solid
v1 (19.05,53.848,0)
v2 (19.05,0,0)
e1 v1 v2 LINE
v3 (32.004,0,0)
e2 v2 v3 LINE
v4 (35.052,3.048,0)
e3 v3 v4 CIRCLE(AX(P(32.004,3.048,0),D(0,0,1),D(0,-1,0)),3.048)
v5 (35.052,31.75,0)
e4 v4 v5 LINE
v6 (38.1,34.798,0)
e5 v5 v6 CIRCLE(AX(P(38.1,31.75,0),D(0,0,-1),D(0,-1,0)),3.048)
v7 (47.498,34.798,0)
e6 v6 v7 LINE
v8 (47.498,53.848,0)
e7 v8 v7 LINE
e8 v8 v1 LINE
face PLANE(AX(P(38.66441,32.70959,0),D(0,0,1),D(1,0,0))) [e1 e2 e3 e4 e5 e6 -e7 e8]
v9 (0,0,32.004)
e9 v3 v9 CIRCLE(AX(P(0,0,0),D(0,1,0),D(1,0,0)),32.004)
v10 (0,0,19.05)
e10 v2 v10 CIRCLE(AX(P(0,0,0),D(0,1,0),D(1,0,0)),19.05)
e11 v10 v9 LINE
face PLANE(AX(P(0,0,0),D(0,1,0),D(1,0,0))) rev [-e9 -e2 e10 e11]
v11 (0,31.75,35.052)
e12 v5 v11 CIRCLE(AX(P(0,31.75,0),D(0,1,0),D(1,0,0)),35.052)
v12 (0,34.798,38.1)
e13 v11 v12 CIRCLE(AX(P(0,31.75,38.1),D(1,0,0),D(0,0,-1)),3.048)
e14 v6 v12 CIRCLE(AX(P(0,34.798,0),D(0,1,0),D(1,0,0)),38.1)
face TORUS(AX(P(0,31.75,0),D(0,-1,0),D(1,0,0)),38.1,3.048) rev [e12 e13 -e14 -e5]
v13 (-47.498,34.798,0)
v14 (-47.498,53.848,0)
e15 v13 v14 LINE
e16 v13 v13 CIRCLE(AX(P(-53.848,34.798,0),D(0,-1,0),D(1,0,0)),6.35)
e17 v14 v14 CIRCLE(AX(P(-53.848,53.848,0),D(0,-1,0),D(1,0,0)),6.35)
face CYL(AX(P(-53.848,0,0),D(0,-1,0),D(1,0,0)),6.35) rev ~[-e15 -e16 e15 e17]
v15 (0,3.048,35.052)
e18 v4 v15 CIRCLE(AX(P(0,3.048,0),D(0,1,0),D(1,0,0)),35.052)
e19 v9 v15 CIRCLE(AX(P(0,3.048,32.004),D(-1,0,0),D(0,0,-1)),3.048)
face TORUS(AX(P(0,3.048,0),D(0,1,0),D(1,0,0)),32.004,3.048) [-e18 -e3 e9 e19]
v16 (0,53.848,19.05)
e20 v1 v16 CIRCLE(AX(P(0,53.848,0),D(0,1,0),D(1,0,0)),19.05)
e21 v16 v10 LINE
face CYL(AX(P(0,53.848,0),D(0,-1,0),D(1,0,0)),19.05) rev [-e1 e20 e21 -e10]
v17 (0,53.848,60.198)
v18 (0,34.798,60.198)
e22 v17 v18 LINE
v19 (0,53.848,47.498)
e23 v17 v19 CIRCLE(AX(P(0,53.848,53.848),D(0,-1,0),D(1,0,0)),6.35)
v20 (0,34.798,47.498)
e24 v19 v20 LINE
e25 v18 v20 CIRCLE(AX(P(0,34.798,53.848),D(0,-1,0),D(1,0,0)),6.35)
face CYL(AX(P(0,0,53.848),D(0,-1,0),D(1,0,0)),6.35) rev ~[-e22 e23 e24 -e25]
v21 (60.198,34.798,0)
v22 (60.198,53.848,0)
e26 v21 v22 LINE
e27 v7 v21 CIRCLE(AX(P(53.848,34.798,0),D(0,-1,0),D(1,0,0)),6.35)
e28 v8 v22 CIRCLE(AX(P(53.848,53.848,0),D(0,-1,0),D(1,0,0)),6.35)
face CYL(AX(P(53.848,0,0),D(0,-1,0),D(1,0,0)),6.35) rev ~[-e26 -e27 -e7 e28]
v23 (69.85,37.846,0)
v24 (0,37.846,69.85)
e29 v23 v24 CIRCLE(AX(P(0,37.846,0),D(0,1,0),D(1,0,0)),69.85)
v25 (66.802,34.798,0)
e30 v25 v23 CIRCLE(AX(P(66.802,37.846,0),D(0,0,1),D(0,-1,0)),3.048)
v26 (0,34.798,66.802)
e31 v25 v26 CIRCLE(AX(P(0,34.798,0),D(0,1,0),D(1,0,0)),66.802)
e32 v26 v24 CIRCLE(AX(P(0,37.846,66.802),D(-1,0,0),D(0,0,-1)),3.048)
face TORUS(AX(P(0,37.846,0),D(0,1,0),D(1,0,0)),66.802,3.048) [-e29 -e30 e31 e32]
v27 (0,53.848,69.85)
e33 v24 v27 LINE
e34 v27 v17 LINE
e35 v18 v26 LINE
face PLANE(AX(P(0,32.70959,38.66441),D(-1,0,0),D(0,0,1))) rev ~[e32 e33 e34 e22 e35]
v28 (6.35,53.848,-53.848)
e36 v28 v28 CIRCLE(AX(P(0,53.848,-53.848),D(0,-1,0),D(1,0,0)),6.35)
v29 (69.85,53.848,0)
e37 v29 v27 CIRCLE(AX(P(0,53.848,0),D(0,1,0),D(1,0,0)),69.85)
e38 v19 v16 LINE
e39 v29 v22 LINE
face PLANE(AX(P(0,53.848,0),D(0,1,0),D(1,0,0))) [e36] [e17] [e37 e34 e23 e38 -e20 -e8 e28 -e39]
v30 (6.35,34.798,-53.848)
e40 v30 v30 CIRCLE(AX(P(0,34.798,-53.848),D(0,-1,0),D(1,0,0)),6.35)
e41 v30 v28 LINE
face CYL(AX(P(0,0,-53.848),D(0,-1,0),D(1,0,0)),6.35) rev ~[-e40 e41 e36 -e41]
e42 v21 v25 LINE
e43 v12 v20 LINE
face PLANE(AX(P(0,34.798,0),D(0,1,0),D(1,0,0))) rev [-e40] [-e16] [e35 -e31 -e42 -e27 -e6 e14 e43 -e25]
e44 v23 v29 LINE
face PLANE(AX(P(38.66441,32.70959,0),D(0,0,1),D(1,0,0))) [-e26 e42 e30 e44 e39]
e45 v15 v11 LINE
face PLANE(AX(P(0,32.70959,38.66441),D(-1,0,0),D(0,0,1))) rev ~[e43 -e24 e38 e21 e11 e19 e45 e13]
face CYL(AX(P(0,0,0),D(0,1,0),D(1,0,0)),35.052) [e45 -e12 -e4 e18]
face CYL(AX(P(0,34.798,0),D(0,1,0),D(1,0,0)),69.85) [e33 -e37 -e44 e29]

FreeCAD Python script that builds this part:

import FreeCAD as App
import Part
import Sketcher

V = App.Vector
Q = App.Units.Quantity


def edges_at(feature, points):
    """Names of the edges that pass closest to the given points."""
    edges = feature.Shape.Edges
    near = lambda p: min(range(len(edges)), key=lambda i: edges[i].distToShape(Part.Vertex(*p))[0])
    return sorted({f"Edge{near(p) + 1}" for p in points})


def add_polygon(sketch, points):
    """Adds a closed chain of lines whose ends are joined by coincident constraints."""
    first, n = sketch.GeometryCount, len(points)
    for a, b in zip(points, points[1:] + points[:1]):
        sketch.addGeometry(Part.LineSegment(App.Vector(*a, 0), App.Vector(*b, 0)), False)
    for i in range(n):
        sketch.addConstraint(Sketcher.Constraint("Coincident", first + i, 2, first + (i + 1) % n, 1))

doc = App.newDocument("Part")
params = doc.addObject("Spreadsheet::Sheet", "Params")
for row, (alias, value) in enumerate([
    ("sketch1_width", "2 in"),
    ("sketch1_width2", "0.63 in"),
    ("sketch1_height", "2.12 in"),
    ("revolution_angle", "270 deg"),
    ("fillet_radius", "0.12 in"),
    ("sketch2_diameter", "0.5 in"),
], start=1):
    params.set(f"A{row}", alias)
    params.set(f"B{row}", "=" + value)
    params.setAlias(f"B{row}", alias)

body = doc.addObject("PartDesign::Body", "Body")

# Sketch on XY plane
sketch1 = doc.addObject("Sketcher::SketchObject", "Sketch")
body.addObject(sketch1)
sketch1.AttachmentSupport = (doc.XY_Plane, [""])
sketch1.MapMode = "FlatFace"
add_polygon(sketch1, [(19, 54), (19, 0), (35, 0), (35, 35), (70, 35), (70, 54)])  # lines 0-5
sketch1.addConstraint([
    Sketcher.Constraint("Vertical", 0),
    Sketcher.Constraint("Horizontal", 1),
    Sketcher.Constraint("Vertical", 2),
    Sketcher.Constraint("Horizontal", 3),
    Sketcher.Constraint("Vertical", 4),
    Sketcher.Constraint("Horizontal", 5),
    Sketcher.Constraint("PointOnObject", 0, 2, -1),
    Sketcher.Constraint("Equal", 3, 2),
    Sketcher.Constraint("DistanceX", 5, 2, 5, 1, Q("2 in")),
    Sketcher.Constraint("DistanceX", 1, 1, 1, 2, Q("0.63 in")),
    Sketcher.Constraint("DistanceY", 0, 2, 0, 1, Q("2.12 in")),
    Sketcher.Constraint("DistanceX", -1, 1, 0, 2, Q("0.75 in")),
])
sketch1.setExpression("Constraints[14]", "Params.sketch1_width")
sketch1.setExpression("Constraints[15]", "Params.sketch1_width2")
sketch1.setExpression("Constraints[16]", "Params.sketch1_height")
revolution = doc.addObject("PartDesign::Revolution", "Revolution")
body.addObject(revolution)
revolution.Profile = sketch1
revolution.ReferenceAxis = (sketch1, ["V_Axis"])
revolution.setExpression("Angle", "Params.revolution_angle")
doc.recompute()

fillet = doc.addObject("PartDesign::Fillet", "Fillet")
body.addObject(fillet)
fillet.Base = (revolution, edges_at(revolution, [(-49.391, 34.798, -49.391), (-24.786, 0, -24.786), (-24.786, 34.798, -24.786)]))
fillet.setExpression("Radius", "Params.fillet_radius")

# Sketch on XZ plane
sketch2 = doc.addObject("Sketcher::SketchObject", "Sketch001")
body.addObject(sketch2)
sketch2.AttachmentSupport = (doc.XZ_Plane, [""])
sketch2.MapMode = "FlatFace"
sketch2.addGeometry([
    Part.Circle(V(0, 54, 0), V(0, 0, 1), 6),
    Part.Circle(V(54, 0, 0), V(0, 0, 1), 6),
    Part.Circle(V(0, -54, 0), V(0, 0, 1), 6),
    Part.Circle(V(-54, 0, 0), V(0, 0, 1), 6),
], False)
sketch2.addConstraint([
    Sketcher.Constraint("Equal", 0, 1),
    Sketcher.Constraint("Equal", 1, 2),
    Sketcher.Constraint("Equal", 2, 3),
    Sketcher.Constraint("Symmetric", 0, 3, 2, 3, -1, 1),
    Sketcher.Constraint("Symmetric", 1, 3, 3, 3, -1, 1),
    Sketcher.Constraint("PointOnObject", 0, 3, -2),
    Sketcher.Constraint("PointOnObject", 1, 3, -1),
    Sketcher.Constraint("Diameter", 0, Q("0.5 in")),
    Sketcher.Constraint("DistanceY", -1, 1, 0, 3, Q("2.12 in")),
    Sketcher.Constraint("DistanceX", -1, 1, 1, 3, Q("2.12 in")),
])
sketch2.setExpression("Constraints[7]", "Params.sketch2_diameter")
pocket1 = doc.addObject("PartDesign::Pocket", "Pocket")
body.addObject(pocket1)
pocket1.Profile = sketch2
pocket1.Type = "ThroughAll"

doc.recompute()
